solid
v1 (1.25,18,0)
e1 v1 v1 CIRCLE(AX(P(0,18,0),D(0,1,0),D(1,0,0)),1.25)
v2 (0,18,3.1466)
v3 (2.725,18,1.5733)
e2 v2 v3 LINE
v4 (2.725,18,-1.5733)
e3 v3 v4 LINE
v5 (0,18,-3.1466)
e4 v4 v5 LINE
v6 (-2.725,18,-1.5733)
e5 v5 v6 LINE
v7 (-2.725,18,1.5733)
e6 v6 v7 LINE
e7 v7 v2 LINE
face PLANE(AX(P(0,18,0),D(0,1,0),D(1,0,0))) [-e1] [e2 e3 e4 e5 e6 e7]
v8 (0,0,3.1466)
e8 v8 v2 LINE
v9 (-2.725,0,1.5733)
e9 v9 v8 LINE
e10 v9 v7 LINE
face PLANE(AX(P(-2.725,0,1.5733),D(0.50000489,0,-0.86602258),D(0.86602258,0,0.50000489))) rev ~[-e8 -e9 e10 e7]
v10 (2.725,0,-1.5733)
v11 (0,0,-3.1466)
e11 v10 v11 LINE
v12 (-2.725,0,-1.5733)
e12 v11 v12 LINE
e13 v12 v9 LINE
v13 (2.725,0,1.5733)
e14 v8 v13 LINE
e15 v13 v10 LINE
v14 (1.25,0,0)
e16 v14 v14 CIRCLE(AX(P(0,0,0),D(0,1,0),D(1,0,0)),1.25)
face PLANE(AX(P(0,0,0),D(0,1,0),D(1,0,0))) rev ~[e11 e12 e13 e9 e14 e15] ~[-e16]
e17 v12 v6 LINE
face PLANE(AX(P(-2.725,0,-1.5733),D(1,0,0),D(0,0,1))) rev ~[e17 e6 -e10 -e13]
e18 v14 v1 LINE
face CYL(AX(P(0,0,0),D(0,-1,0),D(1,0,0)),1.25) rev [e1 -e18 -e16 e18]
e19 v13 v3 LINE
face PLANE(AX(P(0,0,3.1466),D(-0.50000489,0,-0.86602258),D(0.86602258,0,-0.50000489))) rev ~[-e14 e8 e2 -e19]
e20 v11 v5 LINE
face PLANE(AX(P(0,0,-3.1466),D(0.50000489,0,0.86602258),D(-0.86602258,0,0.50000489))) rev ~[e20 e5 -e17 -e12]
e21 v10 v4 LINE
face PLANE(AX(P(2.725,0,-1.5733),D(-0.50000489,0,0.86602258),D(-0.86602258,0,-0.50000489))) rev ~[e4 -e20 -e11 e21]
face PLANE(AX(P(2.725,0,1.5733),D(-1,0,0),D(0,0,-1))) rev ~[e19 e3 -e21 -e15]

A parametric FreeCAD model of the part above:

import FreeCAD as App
import Part
import Sketcher
from FreeCAD import Vector
Q = App.Units.Quantity

doc = App.newDocument("Part")
body = doc.addObject("PartDesign::Body", "Body")

# Sketch on XZ plane
sketch1 = body.newObject("Sketcher::SketchObject", "Sketch")
sketch1.AttachmentSupport = (doc.getObject("XZ_Plane"), [""])
sketch1.MapMode = "FlatFace"
sketch1.addGeometry([
    Part.LineSegment(Vector(2.7, 1.6, 0), Vector(2.7, -1.6, 0)),  # 0
    Part.LineSegment(Vector(2.7, -1.6, 0), Vector(0, -3.1, 0)),  # 1
    Part.LineSegment(Vector(0, -3.1, 0), Vector(-2.7, -1.6, 0)),  # 2
    Part.LineSegment(Vector(-2.7, -1.6, 0), Vector(-2.7, 1.6, 0)),  # 3
    Part.LineSegment(Vector(-2.7, 1.6, 0), Vector(0, 3.1, 0)),  # 4
    Part.LineSegment(Vector(0, 3.1, 0), Vector(2.7, 1.6, 0)),  # 5
    Part.Circle(Vector(0, 0, 0), Vector(0, 0, 1), 1.2),  # 6
], False)
sketch1.addConstraint([
    Sketcher.Constraint("Coincident", 0, 2, 1, 1),
    Sketcher.Constraint("Coincident", 1, 2, 2, 1),
    Sketcher.Constraint("Coincident", 2, 2, 3, 1),
    Sketcher.Constraint("Coincident", 3, 2, 4, 1),
    Sketcher.Constraint("Coincident", 4, 2, 5, 1),
    Sketcher.Constraint("Coincident", 5, 2, 0, 1),
    Sketcher.Constraint("Vertical", 0),
    Sketcher.Constraint("Vertical", 3),
    Sketcher.Constraint("Coincident", 6, 3, -1, 1),
    Sketcher.Constraint("Symmetric", 0, 2, 3, 2, -1, 1),
    Sketcher.Constraint("Symmetric", 1, 2, 4, 2, -1, 1),
    Sketcher.Constraint("PointOnObject", 1, 2, -2),
    Sketcher.Constraint("Parallel", 2, 5),
    Sketcher.Constraint("Horizontal", 0, 2, 2, 2),
    Sketcher.Constraint("Diameter", 6, 2.5),
    Sketcher.Constraint("Angle", 1, Q("-149.9997 deg")),
    Sketcher.Constraint("DistanceX", 2, 2, 0, 2, 5.45),
    Sketcher.Constraint("DistanceY", 1, 2, 3, 2, 4.72),
])
pad1 = body.newObject("PartDesign::Pad", "Pad")
pad1.Profile = sketch1
pad1.Length = 18
pad1.Reversed = True

doc.recompute()
